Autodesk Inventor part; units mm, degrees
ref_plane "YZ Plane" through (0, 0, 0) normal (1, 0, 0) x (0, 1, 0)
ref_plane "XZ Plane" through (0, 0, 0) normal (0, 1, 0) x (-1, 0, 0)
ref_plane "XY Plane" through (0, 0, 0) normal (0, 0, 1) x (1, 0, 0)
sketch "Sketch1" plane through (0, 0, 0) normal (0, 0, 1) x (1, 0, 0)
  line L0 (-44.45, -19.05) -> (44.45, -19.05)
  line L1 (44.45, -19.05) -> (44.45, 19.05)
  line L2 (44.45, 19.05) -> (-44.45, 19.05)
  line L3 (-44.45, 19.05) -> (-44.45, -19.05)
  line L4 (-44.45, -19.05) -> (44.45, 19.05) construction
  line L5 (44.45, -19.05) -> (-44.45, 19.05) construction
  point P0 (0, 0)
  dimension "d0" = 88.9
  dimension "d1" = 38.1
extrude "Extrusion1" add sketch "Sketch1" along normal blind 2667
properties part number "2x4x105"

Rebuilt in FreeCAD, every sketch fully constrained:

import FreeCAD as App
import Part
import Sketcher

V = App.Vector
Q = App.Units.Quantity


def add_polygon(sketch, points):
    """Adds a closed chain of lines whose ends are joined by coincident constraints."""
    first, n = sketch.GeometryCount, len(points)
    for a, b in zip(points, points[1:] + points[:1]):
        sketch.addGeometry(Part.LineSegment(App.Vector(*a, 0), App.Vector(*b, 0)), False)
    for i in range(n):
        sketch.addConstraint(Sketcher.Constraint("Coincident", first + i, 2, first + (i + 1) % n, 1))

doc = App.newDocument("Part")
body = doc.addObject("PartDesign::Body", "Body")

# Sketch on XY plane
sketch1 = body.newObject("Sketcher::SketchObject", "Sketch")
sketch1.AttachmentSupport = (doc.getObject("XY_Plane"), [""])
sketch1.MapMode = "FlatFace"
add_polygon(sketch1, [(-44, 19), (-44, -19), (44, -19), (44, 19)])  # lines 0-3
sketch1.addConstraint([
    Sketcher.Constraint("Vertical", 0),
    Sketcher.Constraint("Horizontal", 1),
    Sketcher.Constraint("Vertical", 2),
    Sketcher.Constraint("Horizontal", 3),
    Sketcher.Constraint("Symmetric", 0, 2, 2, 2, -1, 1),
    Sketcher.Constraint("DistanceX", 1, 1, 1, 2, Q("3.5 in")),
    Sketcher.Constraint("DistanceY", 0, 2, 0, 1, Q("1.5 in")),
])
pad1 = body.newObject("PartDesign::Pad", "Pad")
pad1.Profile = sketch1
pad1.Length = Q("105 in")

doc.recompute()
